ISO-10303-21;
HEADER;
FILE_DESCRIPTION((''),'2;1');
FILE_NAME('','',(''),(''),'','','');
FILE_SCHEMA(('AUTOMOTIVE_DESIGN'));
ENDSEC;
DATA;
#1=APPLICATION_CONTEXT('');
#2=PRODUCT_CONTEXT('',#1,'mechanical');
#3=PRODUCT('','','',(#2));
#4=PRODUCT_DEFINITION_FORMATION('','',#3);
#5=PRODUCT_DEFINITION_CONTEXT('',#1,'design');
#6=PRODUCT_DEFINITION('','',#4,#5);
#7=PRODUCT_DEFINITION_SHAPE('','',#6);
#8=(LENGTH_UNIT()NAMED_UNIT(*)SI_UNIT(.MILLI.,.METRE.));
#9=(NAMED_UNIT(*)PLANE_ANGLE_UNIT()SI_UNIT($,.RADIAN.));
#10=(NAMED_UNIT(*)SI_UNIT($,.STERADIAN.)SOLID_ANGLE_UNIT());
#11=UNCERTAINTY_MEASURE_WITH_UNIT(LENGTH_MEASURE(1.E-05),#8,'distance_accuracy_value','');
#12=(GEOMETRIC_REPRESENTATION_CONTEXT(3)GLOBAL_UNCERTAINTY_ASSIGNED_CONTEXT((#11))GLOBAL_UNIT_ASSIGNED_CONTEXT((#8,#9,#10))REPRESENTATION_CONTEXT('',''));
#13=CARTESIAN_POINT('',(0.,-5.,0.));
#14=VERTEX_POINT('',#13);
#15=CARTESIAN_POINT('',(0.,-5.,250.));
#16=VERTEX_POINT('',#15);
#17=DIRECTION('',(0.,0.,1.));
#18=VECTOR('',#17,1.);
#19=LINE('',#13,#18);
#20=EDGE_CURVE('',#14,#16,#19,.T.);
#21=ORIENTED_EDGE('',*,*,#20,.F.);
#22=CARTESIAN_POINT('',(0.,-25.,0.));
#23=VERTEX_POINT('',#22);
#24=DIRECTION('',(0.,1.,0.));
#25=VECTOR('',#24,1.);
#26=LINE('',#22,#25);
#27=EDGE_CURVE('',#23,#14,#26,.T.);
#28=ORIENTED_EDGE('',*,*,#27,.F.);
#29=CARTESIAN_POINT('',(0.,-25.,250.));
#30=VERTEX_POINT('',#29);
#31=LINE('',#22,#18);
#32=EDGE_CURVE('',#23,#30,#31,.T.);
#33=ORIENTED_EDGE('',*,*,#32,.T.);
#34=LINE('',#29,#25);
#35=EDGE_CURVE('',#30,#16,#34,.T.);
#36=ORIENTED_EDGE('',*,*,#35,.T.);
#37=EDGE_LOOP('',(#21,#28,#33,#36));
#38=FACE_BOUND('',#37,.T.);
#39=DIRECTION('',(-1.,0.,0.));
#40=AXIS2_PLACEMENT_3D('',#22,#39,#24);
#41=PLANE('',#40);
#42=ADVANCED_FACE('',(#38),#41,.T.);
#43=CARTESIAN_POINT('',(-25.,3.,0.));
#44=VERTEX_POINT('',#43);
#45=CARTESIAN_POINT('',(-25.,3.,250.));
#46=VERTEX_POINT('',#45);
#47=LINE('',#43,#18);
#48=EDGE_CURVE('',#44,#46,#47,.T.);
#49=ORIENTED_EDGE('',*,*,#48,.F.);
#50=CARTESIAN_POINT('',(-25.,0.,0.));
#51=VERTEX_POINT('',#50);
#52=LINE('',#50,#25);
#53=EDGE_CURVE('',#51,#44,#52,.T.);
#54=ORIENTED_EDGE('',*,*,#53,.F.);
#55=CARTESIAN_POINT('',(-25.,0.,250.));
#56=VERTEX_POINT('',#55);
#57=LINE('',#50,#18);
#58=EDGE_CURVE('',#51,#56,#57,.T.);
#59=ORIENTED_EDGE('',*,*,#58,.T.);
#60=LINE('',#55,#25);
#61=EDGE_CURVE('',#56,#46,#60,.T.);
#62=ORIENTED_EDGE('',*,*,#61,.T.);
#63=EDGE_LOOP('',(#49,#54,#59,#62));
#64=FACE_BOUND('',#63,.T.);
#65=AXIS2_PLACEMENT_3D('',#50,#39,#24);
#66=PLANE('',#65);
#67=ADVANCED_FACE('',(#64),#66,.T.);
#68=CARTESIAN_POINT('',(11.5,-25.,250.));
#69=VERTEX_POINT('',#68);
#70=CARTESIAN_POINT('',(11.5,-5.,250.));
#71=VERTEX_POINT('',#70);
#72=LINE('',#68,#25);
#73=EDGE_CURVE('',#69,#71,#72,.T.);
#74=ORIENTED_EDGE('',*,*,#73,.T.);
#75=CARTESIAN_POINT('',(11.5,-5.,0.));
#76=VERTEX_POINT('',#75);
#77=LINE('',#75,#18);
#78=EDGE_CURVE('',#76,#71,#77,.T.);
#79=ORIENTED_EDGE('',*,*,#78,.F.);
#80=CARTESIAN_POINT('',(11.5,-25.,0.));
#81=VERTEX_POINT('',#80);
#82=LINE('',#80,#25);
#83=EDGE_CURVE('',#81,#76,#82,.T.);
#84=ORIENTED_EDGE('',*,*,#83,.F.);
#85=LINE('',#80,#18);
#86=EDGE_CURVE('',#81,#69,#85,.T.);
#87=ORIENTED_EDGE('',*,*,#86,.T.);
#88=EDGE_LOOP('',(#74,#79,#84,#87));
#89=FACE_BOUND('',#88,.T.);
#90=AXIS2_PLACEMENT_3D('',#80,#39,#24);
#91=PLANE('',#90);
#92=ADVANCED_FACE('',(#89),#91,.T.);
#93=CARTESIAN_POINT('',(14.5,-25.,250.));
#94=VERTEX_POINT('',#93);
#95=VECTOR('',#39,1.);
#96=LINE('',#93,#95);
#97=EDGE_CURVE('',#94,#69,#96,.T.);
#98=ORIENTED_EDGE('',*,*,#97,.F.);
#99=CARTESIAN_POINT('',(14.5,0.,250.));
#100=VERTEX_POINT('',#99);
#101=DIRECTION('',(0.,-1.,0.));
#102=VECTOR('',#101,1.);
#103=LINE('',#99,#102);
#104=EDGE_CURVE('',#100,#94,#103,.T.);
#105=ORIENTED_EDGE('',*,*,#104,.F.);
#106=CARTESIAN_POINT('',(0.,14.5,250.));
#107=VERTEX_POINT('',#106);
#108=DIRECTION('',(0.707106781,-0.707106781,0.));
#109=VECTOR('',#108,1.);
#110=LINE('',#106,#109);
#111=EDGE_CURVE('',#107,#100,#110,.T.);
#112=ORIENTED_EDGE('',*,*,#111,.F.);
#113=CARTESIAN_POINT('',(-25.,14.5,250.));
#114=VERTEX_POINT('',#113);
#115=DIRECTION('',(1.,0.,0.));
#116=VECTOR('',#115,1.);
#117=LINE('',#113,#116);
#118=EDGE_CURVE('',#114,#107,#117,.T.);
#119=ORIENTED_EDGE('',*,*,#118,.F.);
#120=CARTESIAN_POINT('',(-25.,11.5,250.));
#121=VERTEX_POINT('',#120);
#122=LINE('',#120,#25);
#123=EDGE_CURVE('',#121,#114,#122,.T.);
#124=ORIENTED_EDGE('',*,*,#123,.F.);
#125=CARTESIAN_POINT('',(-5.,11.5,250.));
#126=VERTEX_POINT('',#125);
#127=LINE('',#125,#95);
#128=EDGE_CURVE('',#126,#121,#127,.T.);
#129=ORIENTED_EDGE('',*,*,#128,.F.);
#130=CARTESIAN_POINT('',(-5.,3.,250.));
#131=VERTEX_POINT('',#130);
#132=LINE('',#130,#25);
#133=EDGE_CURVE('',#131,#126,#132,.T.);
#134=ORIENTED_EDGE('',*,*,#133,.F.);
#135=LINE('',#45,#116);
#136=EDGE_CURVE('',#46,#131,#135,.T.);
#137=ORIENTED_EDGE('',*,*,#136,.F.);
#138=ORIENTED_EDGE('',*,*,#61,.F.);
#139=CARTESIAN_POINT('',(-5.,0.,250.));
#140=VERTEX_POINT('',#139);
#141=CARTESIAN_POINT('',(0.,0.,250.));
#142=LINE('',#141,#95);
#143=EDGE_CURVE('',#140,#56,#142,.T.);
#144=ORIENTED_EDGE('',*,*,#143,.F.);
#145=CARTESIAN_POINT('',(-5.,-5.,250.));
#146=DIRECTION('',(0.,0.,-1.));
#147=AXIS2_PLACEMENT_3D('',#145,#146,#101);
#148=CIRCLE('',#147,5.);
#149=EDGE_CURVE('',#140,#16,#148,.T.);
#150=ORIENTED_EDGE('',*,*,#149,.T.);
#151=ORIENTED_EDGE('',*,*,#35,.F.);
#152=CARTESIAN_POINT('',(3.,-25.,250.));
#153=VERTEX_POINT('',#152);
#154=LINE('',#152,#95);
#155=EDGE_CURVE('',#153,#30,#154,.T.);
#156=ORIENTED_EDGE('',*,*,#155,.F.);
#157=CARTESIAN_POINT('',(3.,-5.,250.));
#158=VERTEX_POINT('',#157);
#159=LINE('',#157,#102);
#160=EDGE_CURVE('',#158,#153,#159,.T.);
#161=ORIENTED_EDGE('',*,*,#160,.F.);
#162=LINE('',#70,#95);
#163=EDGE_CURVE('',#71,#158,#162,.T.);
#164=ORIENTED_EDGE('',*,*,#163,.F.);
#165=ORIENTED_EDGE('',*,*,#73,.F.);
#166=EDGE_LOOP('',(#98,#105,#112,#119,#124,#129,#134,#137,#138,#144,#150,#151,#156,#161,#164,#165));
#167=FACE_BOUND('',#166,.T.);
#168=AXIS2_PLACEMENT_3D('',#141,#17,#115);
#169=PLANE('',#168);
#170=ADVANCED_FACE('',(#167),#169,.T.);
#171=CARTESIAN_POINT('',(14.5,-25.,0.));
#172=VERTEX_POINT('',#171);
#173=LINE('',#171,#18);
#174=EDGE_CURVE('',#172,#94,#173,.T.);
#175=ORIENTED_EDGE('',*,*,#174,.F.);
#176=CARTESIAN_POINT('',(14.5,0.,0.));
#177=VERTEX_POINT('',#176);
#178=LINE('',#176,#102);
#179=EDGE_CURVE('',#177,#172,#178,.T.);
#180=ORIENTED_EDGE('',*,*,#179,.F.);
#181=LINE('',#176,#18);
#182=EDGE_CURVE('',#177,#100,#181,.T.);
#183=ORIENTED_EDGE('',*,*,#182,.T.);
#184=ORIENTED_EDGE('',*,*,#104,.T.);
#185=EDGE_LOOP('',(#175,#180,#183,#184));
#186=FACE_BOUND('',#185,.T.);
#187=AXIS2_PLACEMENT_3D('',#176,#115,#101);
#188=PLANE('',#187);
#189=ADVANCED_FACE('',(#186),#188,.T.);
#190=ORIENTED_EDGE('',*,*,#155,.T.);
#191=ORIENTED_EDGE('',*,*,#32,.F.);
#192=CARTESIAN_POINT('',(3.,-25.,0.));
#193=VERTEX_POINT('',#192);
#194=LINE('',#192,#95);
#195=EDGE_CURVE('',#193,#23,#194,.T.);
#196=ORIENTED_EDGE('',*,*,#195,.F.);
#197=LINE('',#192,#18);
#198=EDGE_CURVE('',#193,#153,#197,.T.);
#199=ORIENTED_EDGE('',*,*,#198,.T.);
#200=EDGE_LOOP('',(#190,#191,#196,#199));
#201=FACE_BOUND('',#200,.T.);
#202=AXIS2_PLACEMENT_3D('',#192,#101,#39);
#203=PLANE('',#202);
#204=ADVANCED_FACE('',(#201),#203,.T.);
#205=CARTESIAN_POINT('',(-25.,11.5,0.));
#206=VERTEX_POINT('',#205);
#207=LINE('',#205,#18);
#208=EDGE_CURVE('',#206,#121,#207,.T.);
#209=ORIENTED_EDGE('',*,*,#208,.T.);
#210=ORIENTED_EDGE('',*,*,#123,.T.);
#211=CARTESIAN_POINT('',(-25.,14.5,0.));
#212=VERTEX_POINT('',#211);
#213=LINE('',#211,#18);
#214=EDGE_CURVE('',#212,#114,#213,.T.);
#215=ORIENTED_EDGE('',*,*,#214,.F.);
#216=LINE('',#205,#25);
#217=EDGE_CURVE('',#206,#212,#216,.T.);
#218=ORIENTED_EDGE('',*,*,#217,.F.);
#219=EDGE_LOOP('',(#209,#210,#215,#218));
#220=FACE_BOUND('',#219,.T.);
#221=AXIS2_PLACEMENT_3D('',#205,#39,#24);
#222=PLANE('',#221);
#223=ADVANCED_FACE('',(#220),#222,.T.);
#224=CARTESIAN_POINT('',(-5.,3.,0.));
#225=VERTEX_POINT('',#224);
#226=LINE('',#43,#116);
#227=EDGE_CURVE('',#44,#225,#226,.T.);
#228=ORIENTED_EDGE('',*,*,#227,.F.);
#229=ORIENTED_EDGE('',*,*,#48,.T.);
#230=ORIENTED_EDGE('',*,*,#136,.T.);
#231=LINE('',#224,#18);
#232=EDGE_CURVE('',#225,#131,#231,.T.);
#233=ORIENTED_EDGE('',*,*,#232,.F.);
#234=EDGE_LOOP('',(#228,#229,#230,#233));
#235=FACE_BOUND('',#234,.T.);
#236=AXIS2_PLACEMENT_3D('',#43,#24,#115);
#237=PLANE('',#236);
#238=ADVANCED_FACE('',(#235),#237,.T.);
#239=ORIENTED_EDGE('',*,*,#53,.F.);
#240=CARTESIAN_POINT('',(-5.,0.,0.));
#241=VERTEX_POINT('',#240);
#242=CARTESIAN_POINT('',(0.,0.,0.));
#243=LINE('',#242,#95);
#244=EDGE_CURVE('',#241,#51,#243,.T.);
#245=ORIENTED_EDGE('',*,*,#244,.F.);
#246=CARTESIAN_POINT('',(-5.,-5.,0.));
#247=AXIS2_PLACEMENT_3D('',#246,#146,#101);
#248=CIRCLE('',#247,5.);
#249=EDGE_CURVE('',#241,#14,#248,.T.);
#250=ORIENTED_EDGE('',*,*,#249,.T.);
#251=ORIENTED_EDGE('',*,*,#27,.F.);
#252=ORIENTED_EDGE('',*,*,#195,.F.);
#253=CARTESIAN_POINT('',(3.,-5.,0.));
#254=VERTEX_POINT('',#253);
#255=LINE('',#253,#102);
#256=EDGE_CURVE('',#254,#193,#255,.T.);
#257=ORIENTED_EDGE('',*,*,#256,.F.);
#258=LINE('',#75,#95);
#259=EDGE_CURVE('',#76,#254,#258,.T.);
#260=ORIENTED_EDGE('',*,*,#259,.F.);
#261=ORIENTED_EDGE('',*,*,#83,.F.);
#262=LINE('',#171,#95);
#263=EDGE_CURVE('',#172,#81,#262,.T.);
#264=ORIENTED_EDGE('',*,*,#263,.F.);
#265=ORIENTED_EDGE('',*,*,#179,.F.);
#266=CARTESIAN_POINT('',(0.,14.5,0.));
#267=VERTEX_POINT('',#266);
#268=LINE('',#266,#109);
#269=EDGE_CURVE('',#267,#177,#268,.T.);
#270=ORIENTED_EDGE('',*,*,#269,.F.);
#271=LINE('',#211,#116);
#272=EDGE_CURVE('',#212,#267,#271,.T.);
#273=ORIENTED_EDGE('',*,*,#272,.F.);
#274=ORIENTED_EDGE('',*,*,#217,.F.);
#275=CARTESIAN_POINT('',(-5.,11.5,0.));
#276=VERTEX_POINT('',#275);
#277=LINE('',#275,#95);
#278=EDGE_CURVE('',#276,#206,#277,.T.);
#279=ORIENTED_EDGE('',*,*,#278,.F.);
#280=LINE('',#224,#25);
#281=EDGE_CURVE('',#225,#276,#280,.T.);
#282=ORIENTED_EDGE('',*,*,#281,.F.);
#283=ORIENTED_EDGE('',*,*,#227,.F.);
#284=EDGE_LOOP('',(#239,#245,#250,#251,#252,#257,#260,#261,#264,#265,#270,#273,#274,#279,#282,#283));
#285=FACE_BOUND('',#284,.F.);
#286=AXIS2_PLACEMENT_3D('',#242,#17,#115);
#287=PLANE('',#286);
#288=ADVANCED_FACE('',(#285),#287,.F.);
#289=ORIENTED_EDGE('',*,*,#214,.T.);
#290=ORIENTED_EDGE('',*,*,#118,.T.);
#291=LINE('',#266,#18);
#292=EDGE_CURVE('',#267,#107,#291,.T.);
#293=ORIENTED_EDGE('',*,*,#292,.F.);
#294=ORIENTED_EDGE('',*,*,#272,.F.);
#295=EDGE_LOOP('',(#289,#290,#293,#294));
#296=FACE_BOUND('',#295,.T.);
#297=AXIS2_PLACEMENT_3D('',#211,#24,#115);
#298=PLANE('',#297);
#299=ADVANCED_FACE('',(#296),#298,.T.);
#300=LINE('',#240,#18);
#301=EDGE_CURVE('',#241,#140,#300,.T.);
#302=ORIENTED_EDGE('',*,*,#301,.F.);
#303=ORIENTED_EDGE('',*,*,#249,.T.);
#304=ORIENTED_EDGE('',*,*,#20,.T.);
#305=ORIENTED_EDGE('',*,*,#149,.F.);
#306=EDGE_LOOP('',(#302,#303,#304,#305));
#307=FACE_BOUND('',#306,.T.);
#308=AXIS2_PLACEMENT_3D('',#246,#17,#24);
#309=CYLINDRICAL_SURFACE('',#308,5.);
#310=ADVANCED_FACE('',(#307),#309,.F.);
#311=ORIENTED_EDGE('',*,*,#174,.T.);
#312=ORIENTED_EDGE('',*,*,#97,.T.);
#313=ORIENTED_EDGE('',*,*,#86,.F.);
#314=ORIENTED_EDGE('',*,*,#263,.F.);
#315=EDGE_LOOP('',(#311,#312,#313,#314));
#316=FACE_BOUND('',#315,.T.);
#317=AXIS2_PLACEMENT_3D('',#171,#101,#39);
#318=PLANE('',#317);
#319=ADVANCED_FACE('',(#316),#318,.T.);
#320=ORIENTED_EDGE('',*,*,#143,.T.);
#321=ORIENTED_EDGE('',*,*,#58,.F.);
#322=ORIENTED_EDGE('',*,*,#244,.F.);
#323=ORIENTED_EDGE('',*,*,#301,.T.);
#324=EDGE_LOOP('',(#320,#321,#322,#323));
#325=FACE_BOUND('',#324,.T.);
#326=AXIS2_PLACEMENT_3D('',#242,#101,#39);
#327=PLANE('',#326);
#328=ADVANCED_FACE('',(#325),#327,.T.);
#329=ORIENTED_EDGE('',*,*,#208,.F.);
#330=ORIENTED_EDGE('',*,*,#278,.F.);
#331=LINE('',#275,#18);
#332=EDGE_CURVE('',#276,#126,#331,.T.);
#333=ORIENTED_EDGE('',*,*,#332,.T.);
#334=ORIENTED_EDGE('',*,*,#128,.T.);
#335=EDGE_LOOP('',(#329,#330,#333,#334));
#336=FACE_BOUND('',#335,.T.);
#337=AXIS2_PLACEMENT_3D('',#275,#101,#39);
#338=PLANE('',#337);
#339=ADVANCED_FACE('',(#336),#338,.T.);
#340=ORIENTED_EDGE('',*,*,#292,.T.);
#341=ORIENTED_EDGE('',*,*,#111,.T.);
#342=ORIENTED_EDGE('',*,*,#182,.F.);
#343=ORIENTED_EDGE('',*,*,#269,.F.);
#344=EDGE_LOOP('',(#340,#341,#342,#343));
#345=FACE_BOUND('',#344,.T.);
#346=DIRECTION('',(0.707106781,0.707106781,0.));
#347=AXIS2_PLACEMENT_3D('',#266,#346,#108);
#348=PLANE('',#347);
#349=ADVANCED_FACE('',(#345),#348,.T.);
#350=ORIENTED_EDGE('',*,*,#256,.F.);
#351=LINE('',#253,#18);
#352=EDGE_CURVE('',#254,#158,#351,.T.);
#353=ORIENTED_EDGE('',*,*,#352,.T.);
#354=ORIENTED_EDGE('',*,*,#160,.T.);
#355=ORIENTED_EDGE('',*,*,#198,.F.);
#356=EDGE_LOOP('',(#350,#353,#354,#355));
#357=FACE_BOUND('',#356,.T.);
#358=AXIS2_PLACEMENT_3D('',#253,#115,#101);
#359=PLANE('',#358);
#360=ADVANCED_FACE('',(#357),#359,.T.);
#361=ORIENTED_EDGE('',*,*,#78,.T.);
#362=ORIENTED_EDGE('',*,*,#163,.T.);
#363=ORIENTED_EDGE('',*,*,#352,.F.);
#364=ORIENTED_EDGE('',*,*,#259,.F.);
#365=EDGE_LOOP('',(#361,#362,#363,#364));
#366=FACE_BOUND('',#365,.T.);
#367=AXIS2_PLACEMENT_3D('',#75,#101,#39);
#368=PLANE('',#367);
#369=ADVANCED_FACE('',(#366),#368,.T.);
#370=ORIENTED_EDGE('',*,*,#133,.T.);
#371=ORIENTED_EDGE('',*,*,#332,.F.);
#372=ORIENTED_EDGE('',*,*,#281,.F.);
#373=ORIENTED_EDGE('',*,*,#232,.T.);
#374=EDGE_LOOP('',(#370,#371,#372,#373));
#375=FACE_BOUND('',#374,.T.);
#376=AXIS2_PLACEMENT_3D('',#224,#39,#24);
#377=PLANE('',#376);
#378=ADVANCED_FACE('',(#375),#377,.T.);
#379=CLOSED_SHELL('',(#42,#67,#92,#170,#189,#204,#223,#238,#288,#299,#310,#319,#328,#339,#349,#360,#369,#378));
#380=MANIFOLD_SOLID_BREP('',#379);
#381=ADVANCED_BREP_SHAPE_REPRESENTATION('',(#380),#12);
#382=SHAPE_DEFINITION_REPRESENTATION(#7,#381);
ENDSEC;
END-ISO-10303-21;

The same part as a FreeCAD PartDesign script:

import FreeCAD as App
import Part
import Sketcher
Q = App.Units.Quantity


def edges_at(feature, points):
    """Names of the edges that pass closest to the given points."""
    edges = feature.Shape.Edges
    near = lambda p: min(range(len(edges)), key=lambda i: edges[i].distToShape(Part.Vertex(*p))[0])
    return sorted({f"Edge{near(p) + 1}" for p in points})

doc = App.newDocument("Part")
body = doc.addObject("PartDesign::Body", "Body")

sketch1 = doc.addObject("Sketcher::SketchObject", "Sketch")
body.addObject(sketch1)
sketch1.AttachmentSupport = (doc.XY_Plane, [""])
sketch1.MapMode = "FlatFace"
sketch1.addGeometry([
    Part.LineSegment(App.Vector(-25, 0, 0), App.Vector(0, 0, 0)),
    Part.LineSegment(App.Vector(0, 0, 0), App.Vector(0, -25, 0)),
    Part.LineSegment(App.Vector(0, -25, 0), App.Vector(3, -25, 0)),
    Part.LineSegment(App.Vector(3, -25, 0), App.Vector(3, -5, 0)),
    Part.LineSegment(App.Vector(3, -5, 0), App.Vector(11.5, -5, 0)),
    Part.LineSegment(App.Vector(11.5, -5, 0), App.Vector(11.5, -25, 0)),
    Part.LineSegment(App.Vector(11.5, -25, 0), App.Vector(14.5, -25, 0)),
    Part.LineSegment(App.Vector(14.5, -25, 0), App.Vector(14.5, 0, 0)),
    Part.LineSegment(App.Vector(14.5, 0, 0), App.Vector(0, 14.5, 0)),
    Part.LineSegment(App.Vector(0, 14.5, 0), App.Vector(-25, 14.5, 0)),
    Part.LineSegment(App.Vector(-25, 14.5, 0), App.Vector(-25, 11.5, 0)),
    Part.LineSegment(App.Vector(-25, 11.5, 0), App.Vector(-5, 11.5, 0)),
    Part.LineSegment(App.Vector(-5, 11.5, 0), App.Vector(-5, 3, 0)),
    Part.LineSegment(App.Vector(-5, 3, 0), App.Vector(-25, 3, 0)),
    Part.LineSegment(App.Vector(-25, 3, 0), App.Vector(-25, 0, 0)),
], False)
sketch1.addConstraint([
    Sketcher.Constraint("Coincident", 0, 2, 1, 1),
    Sketcher.Constraint("Coincident", 1, 2, 2, 1),
    Sketcher.Constraint("Coincident", 2, 2, 3, 1),
    Sketcher.Constraint("Coincident", 3, 2, 4, 1),
    Sketcher.Constraint("Coincident", 4, 2, 5, 1),
    Sketcher.Constraint("Coincident", 5, 2, 6, 1),
    Sketcher.Constraint("Coincident", 6, 2, 7, 1),
    Sketcher.Constraint("Coincident", 7, 2, 8, 1),
    Sketcher.Constraint("Coincident", 8, 2, 9, 1),
    Sketcher.Constraint("Coincident", 9, 2, 10, 1),
    Sketcher.Constraint("Coincident", 10, 2, 11, 1),
    Sketcher.Constraint("Coincident", 11, 2, 12, 1),
    Sketcher.Constraint("Coincident", 12, 2, 13, 1),
    Sketcher.Constraint("Coincident", 13, 2, 14, 1),
    Sketcher.Constraint("Coincident", 14, 2, 0, 1),
    Sketcher.Constraint("Horizontal", 0),
    Sketcher.Constraint("Vertical", 1),
    Sketcher.Constraint("Horizontal", 2),
    Sketcher.Constraint("Vertical", 3),
    Sketcher.Constraint("Horizontal", 4),
    Sketcher.Constraint("Vertical", 5),
    Sketcher.Constraint("Horizontal", 6),
    Sketcher.Constraint("Vertical", 7),
    Sketcher.Constraint("Horizontal", 9),
    Sketcher.Constraint("Vertical", 10),
    Sketcher.Constraint("Horizontal", 11),
    Sketcher.Constraint("Vertical", 12),
    Sketcher.Constraint("Horizontal", 13),
    Sketcher.Constraint("Vertical", 14),
    Sketcher.Constraint("Coincident", 0, 2, -1, 1),
    Sketcher.Constraint("PointOnObject", 7, 2, -1),
    Sketcher.Constraint("PointOnObject", 8, 2, -2),
    Sketcher.Constraint("Horizontal", 2, 2, 5, 2),
    Sketcher.Constraint("Vertical", 10, 2, 13, 2),
    Sketcher.Constraint("Equal", 2, 6),
    Sketcher.Constraint("Equal", 9, 1),
    Sketcher.Constraint("Equal", 13, 3),
    Sketcher.Constraint("Equal", 6, 10),
    Sketcher.Constraint("Equal", 4, 12),
    Sketcher.Constraint("Equal", 10, 14),
    Sketcher.Constraint("DistanceX", 0, 1, 0, 2, Q("25 mm")),
    Sketcher.Constraint("DistanceX", 2, 1, 2, 2, Q("3 mm")),
    Sketcher.Constraint("DistanceX", 11, 1, 11, 2, Q("20 mm")),
    Sketcher.Constraint("DistanceX", 4, 1, 4, 2, Q("8.5 mm")),
])
pad1 = doc.addObject("PartDesign::Pad", "Pad")
body.addObject(pad1)
pad1.Profile = sketch1
pad1.Length = 250
doc.recompute()

fillet = doc.addObject("PartDesign::Fillet", "Fillet")
body.addObject(fillet)
fillet.Base = (pad1, edges_at(pad1, [(0, 0, 125)]))
fillet.Radius = 5

doc.recompute()
